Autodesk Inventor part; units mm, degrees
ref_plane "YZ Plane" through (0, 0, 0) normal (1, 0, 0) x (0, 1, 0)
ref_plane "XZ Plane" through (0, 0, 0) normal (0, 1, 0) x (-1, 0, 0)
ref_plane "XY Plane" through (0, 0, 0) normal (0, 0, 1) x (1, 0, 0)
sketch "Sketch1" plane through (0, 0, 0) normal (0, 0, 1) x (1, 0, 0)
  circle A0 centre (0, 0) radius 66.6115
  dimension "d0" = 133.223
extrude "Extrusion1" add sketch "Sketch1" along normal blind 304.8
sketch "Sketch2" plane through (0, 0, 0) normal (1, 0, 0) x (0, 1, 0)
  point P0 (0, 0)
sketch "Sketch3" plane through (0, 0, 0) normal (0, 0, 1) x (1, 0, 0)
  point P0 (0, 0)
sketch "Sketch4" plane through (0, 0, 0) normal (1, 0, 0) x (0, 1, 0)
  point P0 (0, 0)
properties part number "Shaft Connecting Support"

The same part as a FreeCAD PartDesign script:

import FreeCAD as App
import Part
import Sketcher
Q = App.Units.Quantity

doc = App.newDocument("Part")
body = doc.addObject("PartDesign::Body", "Body")

# Sketch on XY plane
sketch1 = doc.addObject("Sketcher::SketchObject", "Sketch")
body.addObject(sketch1)
sketch1.AttachmentSupport = (doc.XY_Plane, [""])
sketch1.MapMode = "FlatFace"
sketch1.addGeometry(Part.Circle(App.Vector(0, 0, 0), App.Vector(0, 0, 1), 66.6115), False)
sketch1.addConstraint(Sketcher.Constraint("Coincident", 0, 3, -1, 1))
sketch1.addConstraint(Sketcher.Constraint("Diameter", 0, Q("5.245 in")))
pad1 = doc.addObject("PartDesign::Pad", "Pad")
body.addObject(pad1)
pad1.Profile = sketch1
pad1.Length = Q("12 in")

doc.recompute()
